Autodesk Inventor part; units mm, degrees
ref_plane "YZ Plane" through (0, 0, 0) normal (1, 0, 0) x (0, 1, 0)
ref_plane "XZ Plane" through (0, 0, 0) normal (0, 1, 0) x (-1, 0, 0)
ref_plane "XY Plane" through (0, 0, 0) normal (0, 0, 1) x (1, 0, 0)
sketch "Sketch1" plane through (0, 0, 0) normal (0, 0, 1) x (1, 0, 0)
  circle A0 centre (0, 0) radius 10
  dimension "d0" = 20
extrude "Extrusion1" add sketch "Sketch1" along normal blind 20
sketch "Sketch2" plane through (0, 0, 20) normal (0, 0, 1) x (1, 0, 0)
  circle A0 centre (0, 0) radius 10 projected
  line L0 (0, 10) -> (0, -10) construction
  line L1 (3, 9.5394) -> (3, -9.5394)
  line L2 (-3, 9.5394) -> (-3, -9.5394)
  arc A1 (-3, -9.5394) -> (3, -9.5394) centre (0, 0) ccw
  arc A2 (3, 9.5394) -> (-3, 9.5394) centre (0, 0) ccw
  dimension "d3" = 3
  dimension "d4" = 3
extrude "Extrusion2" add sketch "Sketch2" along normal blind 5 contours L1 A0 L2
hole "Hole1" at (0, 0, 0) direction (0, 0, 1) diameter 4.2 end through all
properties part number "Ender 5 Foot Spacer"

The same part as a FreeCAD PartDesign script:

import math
import FreeCAD as App
import Part
import Sketcher
from FreeCAD import Vector
Q = App.Units.Quantity

doc = App.newDocument("Part")
body = doc.addObject("PartDesign::Body", "Body")

# Sketch on XY plane
sketch1 = body.newObject("Sketcher::SketchObject", "Sketch")
sketch1.AttachmentSupport = (doc.getObject("XY_Plane"), [""])
sketch1.MapMode = "FlatFace"
sketch1.addGeometry(Part.Circle(Vector(0, 0, 0), Vector(0, 0, 1), 10), False)
sketch1.addConstraint(Sketcher.Constraint("Coincident", 0, 3, -1, 1))
sketch1.addConstraint(Sketcher.Constraint("Diameter", 0, Q("20 mm")))
pad1 = body.newObject("PartDesign::Pad", "Pad")
pad1.Profile = sketch1
pad1.Length = 20

# Sketch on XY plane
sketch2 = body.newObject("Sketcher::SketchObject", "Sketch001")
sketch2.AttachmentSupport = (doc.getObject("XY_Plane"), [""])
sketch2.MapMode = "FlatFace"
sketch2.AttachmentOffset = App.Placement(Vector(0, 0, 20), App.Rotation())
sketch2.addGeometry(Part.LineSegment(Vector(3, -10, 0), Vector(3, 10, 0)), False)
sketch2.addGeometry(Part.ArcOfCircle(Part.Circle(Vector(0, 0, 0), Vector(0, 0, 1), 10), math.radians(73), math.radians(107)), False)
sketch2.addGeometry(Part.LineSegment(Vector(-3, 10, 0), Vector(-3, -10, 0)), False)
sketch2.addGeometry(Part.ArcOfCircle(Part.Circle(Vector(0, 0, 0), Vector(0, 0, 1), 10), math.radians(-107), math.radians(-73)), False)
sketch2.addConstraint(Sketcher.Constraint("Coincident", 0, 2, 1, 1))
sketch2.addConstraint(Sketcher.Constraint("Coincident", 1, 2, 2, 1))
sketch2.addConstraint(Sketcher.Constraint("Coincident", 2, 2, 3, 1))
sketch2.addConstraint(Sketcher.Constraint("Coincident", 3, 2, 0, 1))
sketch2.addConstraint(Sketcher.Constraint("Vertical", 0))
sketch2.addConstraint(Sketcher.Constraint("Vertical", 2))
sketch2.addConstraint(Sketcher.Constraint("Coincident", 1, 3, -1, 1))
sketch2.addConstraint(Sketcher.Constraint("Coincident", 3, 3, -1, 1))
sketch2.addConstraint(Sketcher.Constraint("Equal", 1, 3))
sketch2.addConstraint(Sketcher.Constraint("Horizontal", 0, 2, 1, 2))
sketch2.addConstraint(Sketcher.Constraint("DistanceX", -1, 1, 0, 2, Q("3 mm")))
sketch2.addConstraint(Sketcher.Constraint("Radius", 1, Q("10 mm")))
pad2 = body.newObject("PartDesign::Pad", "Pad001")
pad2.Profile = sketch2
pad2.Length = 5

# Sketch on XY plane
sketch3 = body.newObject("Sketcher::SketchObject", "Sketch002")
sketch3.AttachmentSupport = (doc.getObject("XY_Plane"), [""])
sketch3.MapMode = "FlatFace"
sketch3.addGeometry(Part.Circle(Vector(0, 0, 0), Vector(0, 0, 1), 2.1), False)
sketch3.addConstraint(Sketcher.Constraint("Coincident", 0, 3, -1, 1))
sketch3.addConstraint(Sketcher.Constraint("Diameter", 0, Q("4.2 mm")))
doc.recompute()
hole = body.newObject("PartDesign::Hole", "Hole")
hole.Profile = sketch3
hole.ThreadType = "None"
hole.Diameter = 4.2
hole.DepthType = "ThroughAll"
hole.Reversed = True

doc.recompute()
